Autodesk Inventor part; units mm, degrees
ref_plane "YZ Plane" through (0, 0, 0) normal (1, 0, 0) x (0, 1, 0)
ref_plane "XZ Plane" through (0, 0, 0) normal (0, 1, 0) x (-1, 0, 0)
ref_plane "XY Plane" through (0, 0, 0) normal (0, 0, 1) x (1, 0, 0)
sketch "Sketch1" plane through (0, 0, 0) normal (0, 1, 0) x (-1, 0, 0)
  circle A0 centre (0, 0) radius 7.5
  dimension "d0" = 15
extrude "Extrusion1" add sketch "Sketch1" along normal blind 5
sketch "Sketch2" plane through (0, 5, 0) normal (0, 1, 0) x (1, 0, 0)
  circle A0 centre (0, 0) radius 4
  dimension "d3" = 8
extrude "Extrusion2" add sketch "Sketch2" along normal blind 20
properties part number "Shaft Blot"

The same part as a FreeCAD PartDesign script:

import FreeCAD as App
import Part
import Sketcher
from FreeCAD import Vector

doc = App.newDocument("Part")
params = doc.addObject("Spreadsheet::Sheet", "Params")
for row, (alias, value) in enumerate([
    ("sketch1_diameter", "15 mm"),
    ("pad1_length", "5 mm"),
    ("sketch2_diameter", "8 mm"),
    ("pad2_length", "20 mm"),
], start=1):
    params.set(f"A{row}", alias)
    params.set(f"B{row}", "=" + value)
    params.setAlias(f"B{row}", alias)

body = doc.addObject("PartDesign::Body", "Body")

# Sketch on XZ plane
sketch1 = body.newObject("Sketcher::SketchObject", "Sketch")
sketch1.AttachmentSupport = (doc.getObject("XZ_Plane"), [""])
sketch1.MapMode = "FlatFace"
sketch1.addGeometry(Part.Circle(Vector(0, 0, 0), Vector(0, 0, 1), 7.5), False)
sketch1.addConstraint([
    Sketcher.Constraint("Coincident", 0, 3, -1, 1),
    Sketcher.Constraint("Diameter", 0, 15.0),
])
sketch1.setExpression("Constraints[1]", "Params.sketch1_diameter")
pad1 = body.newObject("PartDesign::Pad", "Pad")
pad1.Profile = sketch1
pad1.setExpression("Length", "Params.pad1_length")
pad1.Reversed = True

# Sketch on XZ plane
sketch2 = body.newObject("Sketcher::SketchObject", "Sketch001")
sketch2.AttachmentSupport = (doc.getObject("XZ_Plane"), [""])
sketch2.MapMode = "FlatFace"
sketch2.AttachmentOffset = App.Placement(Vector(0, 0, -5), App.Rotation())
sketch2.addGeometry(Part.Circle(Vector(0, 0, 0), Vector(0, 0, 1), 4), False)
sketch2.addConstraint([
    Sketcher.Constraint("Coincident", 0, 3, -1, 1),
    Sketcher.Constraint("Diameter", 0, 8.0),
])
sketch2.setExpression("Constraints[1]", "Params.sketch2_diameter")
pad2 = body.newObject("PartDesign::Pad", "Pad001")
pad2.Profile = sketch2
pad2.setExpression("Length", "Params.pad2_length")
pad2.Reversed = True

doc.recompute()
